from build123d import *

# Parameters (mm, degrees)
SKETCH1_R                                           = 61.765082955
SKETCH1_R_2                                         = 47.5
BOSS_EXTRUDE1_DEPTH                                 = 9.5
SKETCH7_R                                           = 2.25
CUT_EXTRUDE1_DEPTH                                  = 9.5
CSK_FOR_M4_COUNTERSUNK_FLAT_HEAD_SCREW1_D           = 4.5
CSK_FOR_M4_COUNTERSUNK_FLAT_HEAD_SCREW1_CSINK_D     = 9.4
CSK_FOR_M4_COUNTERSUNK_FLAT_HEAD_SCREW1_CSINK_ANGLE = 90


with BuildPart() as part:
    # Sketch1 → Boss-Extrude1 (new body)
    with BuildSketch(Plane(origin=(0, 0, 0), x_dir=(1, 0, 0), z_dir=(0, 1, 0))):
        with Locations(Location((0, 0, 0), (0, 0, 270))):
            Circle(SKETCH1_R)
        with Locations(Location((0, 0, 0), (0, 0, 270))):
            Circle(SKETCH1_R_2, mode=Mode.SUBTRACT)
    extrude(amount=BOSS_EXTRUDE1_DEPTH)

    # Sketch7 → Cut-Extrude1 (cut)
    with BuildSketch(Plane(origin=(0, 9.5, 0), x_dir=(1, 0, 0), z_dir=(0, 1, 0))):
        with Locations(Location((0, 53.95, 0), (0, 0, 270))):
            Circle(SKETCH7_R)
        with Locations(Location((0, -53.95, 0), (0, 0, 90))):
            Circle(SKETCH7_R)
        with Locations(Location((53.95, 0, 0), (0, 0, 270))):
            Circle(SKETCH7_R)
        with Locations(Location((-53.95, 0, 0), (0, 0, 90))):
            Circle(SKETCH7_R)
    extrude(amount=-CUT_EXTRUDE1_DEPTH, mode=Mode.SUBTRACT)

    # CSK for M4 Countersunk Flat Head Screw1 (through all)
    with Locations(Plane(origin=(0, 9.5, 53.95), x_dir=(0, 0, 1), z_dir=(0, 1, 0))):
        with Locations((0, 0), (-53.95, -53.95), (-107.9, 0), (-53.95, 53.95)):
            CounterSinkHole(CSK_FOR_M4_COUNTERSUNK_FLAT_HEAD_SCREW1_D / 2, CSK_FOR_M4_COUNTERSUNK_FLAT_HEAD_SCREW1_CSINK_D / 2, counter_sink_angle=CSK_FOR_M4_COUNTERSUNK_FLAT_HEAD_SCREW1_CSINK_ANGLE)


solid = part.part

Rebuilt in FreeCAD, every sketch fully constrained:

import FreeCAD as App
import Part
import Sketcher
from FreeCAD import Vector
Q = App.Units.Quantity

doc = App.newDocument("Part")
body = doc.addObject("PartDesign::Body", "Body")

# Sketch on XZ plane
sketch1 = body.newObject("Sketcher::SketchObject", "Sketch")
sketch1.AttachmentSupport = (doc.getObject("XZ_Plane"), [""])
sketch1.MapMode = "FlatFace"
sketch1.addGeometry([
    Part.Circle(Vector(0, 0, 0), Vector(0, 0, 1), 62),
    Part.Circle(Vector(0, 0, 0), Vector(0, 0, 1), 48),
], False)
sketch1.addConstraint([
    Sketcher.Constraint("Coincident", 0, 3, -1, 1),
    Sketcher.Constraint("Coincident", 1, 3, -1, 1),
    Sketcher.Constraint("Diameter", 1, Q("95 mm")),
    Sketcher.Constraint("Diameter", 0, Q("123.530166 mm")),
])
pad1 = body.newObject("PartDesign::Pad", "Pad")
pad1.Profile = sketch1
pad1.Length = 9.5
pad1.Reversed = True

# Sketch on XZ plane
sketch2 = body.newObject("Sketcher::SketchObject", "Sketch001")
sketch2.AttachmentSupport = (doc.getObject("XZ_Plane"), [""])
sketch2.MapMode = "FlatFace"
sketch2.AttachmentOffset = App.Placement(Vector(0, 0, -9.5), App.Rotation())
sketch2.addGeometry([
    Part.Circle(Vector(0, -54, 0), Vector(0, 0, 1), 2.2),
    Part.Circle(Vector(0, 54, 0), Vector(0, 0, 1), 2.2),
    Part.Circle(Vector(54, 0, 0), Vector(0, 0, 1), 2.2),
    Part.Circle(Vector(-54, 0, 0), Vector(0, 0, 1), 2.2),
], False)
sketch2.addConstraint([
    Sketcher.Constraint("Equal", 0, 1),
    Sketcher.Constraint("Equal", 1, 2),
    Sketcher.Constraint("Equal", 2, 3),
    Sketcher.Constraint("Symmetric", 0, 3, 1, 3, -1, 1),
    Sketcher.Constraint("Symmetric", 2, 3, 3, 3, -1, 1),
    Sketcher.Constraint("PointOnObject", 0, 3, -2),
    Sketcher.Constraint("PointOnObject", 2, 3, -1),
    Sketcher.Constraint("Diameter", 0, Q("4.5 mm")),
    Sketcher.Constraint("DistanceY", 0, 3, 1, 3, Q("107.9 mm")),
    Sketcher.Constraint("DistanceX", 3, 3, 2, 3, Q("107.9 mm")),
])
pocket1 = body.newObject("PartDesign::Pocket", "Pocket")
pocket1.Profile = sketch2
pocket1.Length = 9.5
pocket1.Reversed = True

# Sketch on XZ plane
sketch3 = body.newObject("Sketcher::SketchObject", "Sketch002")
sketch3.AttachmentSupport = (doc.getObject("XZ_Plane"), [""])
sketch3.MapMode = "FlatFace"
sketch3.AttachmentOffset = App.Placement(Vector(0, 0, -9.5), App.Rotation())
sketch3.addGeometry([
    Part.Circle(Vector(0, 54, 0), Vector(0, 0, 1), 2.2),
    Part.Circle(Vector(-54, 0, 0), Vector(0, 0, 1), 2.2),
    Part.Circle(Vector(0, -54, 0), Vector(0, 0, 1), 2.2),
    Part.Circle(Vector(54, 0, 0), Vector(0, 0, 1), 2.2),
], False)
sketch3.addConstraint([
    Sketcher.Constraint("Equal", 0, 1),
    Sketcher.Constraint("Equal", 1, 2),
    Sketcher.Constraint("Equal", 2, 3),
    Sketcher.Constraint("Symmetric", 0, 3, 2, 3, -1, 1),
    Sketcher.Constraint("Symmetric", 1, 3, 3, 3, -1, 1),
    Sketcher.Constraint("PointOnObject", 0, 3, -2),
    Sketcher.Constraint("PointOnObject", 1, 3, -1),
    Sketcher.Constraint("Diameter", 0, Q("4.5 mm")),
    Sketcher.Constraint("DistanceY", 2, 3, 0, 3, Q("107.9 mm")),
    Sketcher.Constraint("DistanceX", 1, 3, 3, 3, Q("107.9 mm")),
])
doc.recompute()
hole = body.newObject("PartDesign::Hole", "Hole")
hole.Profile = sketch3
hole.ThreadType = "None"
hole.Diameter = 4.5
hole.DepthType = "ThroughAll"
hole.HoleCutType = "Countersink"
hole.HoleCutDiameter = 9.4
hole.HoleCutCountersinkAngle = 90
hole.Reversed = True

doc.recompute()
